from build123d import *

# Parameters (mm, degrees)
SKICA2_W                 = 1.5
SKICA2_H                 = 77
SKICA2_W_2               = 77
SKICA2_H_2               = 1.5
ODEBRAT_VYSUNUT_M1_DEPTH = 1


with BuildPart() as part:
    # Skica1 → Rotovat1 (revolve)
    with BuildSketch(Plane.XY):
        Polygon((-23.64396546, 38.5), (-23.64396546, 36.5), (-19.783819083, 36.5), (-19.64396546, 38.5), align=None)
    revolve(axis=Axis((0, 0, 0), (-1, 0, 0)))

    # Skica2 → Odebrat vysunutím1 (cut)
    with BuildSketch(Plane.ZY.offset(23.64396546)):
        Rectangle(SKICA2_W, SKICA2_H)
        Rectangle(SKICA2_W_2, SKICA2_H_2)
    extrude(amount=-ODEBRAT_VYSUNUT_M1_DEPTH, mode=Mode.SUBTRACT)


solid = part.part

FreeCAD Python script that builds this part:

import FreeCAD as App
import Part
import Sketcher
Q = App.Units.Quantity

doc = App.newDocument("Part")
body = doc.addObject("PartDesign::Body", "Body")

# Sketch on XY plane
sketch1 = body.newObject("Sketcher::SketchObject", "Sketch")
sketch1.AttachmentSupport = (doc.getObject("XY_Plane"), [""])
sketch1.MapMode = "FlatFace"
sketch1.addGeometry(Part.LineSegment(App.Vector(-23.6, 38.5, 0), App.Vector(-23.6, 36.5, 0)), False)
sketch1.addGeometry(Part.LineSegment(App.Vector(-23.6, 36.5, 0), App.Vector(-19.8, 36.5, 0)), False)
sketch1.addGeometry(Part.LineSegment(App.Vector(-19.8, 36.5, 0), App.Vector(-19.6, 38.5, 0)), False)
sketch1.addGeometry(Part.LineSegment(App.Vector(-19.6, 38.5, 0), App.Vector(-23.6, 38.5, 0)), False)
sketch1.addConstraint(Sketcher.Constraint("Coincident", 0, 2, 1, 1))
sketch1.addConstraint(Sketcher.Constraint("Coincident", 1, 2, 2, 1))
sketch1.addConstraint(Sketcher.Constraint("Coincident", 2, 2, 3, 1))
sketch1.addConstraint(Sketcher.Constraint("Coincident", 3, 2, 0, 1))
sketch1.addConstraint(Sketcher.Constraint("Vertical", 0))
sketch1.addConstraint(Sketcher.Constraint("Horizontal", 1))
sketch1.addConstraint(Sketcher.Constraint("Horizontal", 3))
sketch1.addConstraint(Sketcher.Constraint("DistanceX", 3, 2, 3, 1, Q("4 mm")))
sketch1.addConstraint(Sketcher.Constraint("DistanceY", 0, 2, 0, 1, Q("2 mm")))
sketch1.addConstraint(Sketcher.Constraint("Angle", 2, Q("86 deg")))
sketch1.addConstraint(Sketcher.Constraint("DistanceY", -1, 1, 0, 2, Q("36.5 mm")))
sketch1.addConstraint(Sketcher.Constraint("DistanceX", 1, 2, -1, 1, Q("19.783819 mm")))
revolution = body.newObject("PartDesign::Revolution", "Revolution")
revolution.Profile = sketch1
revolution.ReferenceAxis = (sketch1, ["H_Axis"])
revolution.Angle = 360

# Sketch on YZ plane
sketch2 = body.newObject("Sketcher::SketchObject", "Sketch001")
sketch2.AttachmentSupport = (doc.getObject("YZ_Plane"), [""])
sketch2.MapMode = "FlatFace"
sketch2.AttachmentOffset = App.Placement(App.Vector(0, 0, -23.643965), App.Rotation())
sketch2.addGeometry(Part.LineSegment(App.Vector(-0.8, -0.8, 0), App.Vector(-38.5, -0.8, 0)), False)
sketch2.addGeometry(Part.LineSegment(App.Vector(-38.5, -0.8, 0), App.Vector(-38.5, 0.8, 0)), False)
sketch2.addGeometry(Part.LineSegment(App.Vector(-38.5, 0.8, 0), App.Vector(-0.8, 0.8, 0)), False)
sketch2.addGeometry(Part.LineSegment(App.Vector(-0.8, 0.8, 0), App.Vector(-0.8, 38.5, 0)), False)
sketch2.addGeometry(Part.LineSegment(App.Vector(-0.8, 38.5, 0), App.Vector(0.8, 38.5, 0)), False)
sketch2.addGeometry(Part.LineSegment(App.Vector(0.8, 38.5, 0), App.Vector(0.8, 0.8, 0)), False)
sketch2.addGeometry(Part.LineSegment(App.Vector(0.8, 0.8, 0), App.Vector(38.5, 0.8, 0)), False)
sketch2.addGeometry(Part.LineSegment(App.Vector(38.5, 0.8, 0), App.Vector(38.5, -0.8, 0)), False)
sketch2.addGeometry(Part.LineSegment(App.Vector(38.5, -0.8, 0), App.Vector(0.8, -0.8, 0)), False)
sketch2.addGeometry(Part.LineSegment(App.Vector(0.8, -0.8, 0), App.Vector(0.8, -38.5, 0)), False)
sketch2.addGeometry(Part.LineSegment(App.Vector(0.8, -38.5, 0), App.Vector(-0.8, -38.5, 0)), False)
sketch2.addGeometry(Part.LineSegment(App.Vector(-0.8, -38.5, 0), App.Vector(-0.8, -0.8, 0)), False)
sketch2.addConstraint(Sketcher.Constraint("Coincident", 0, 2, 1, 1))
sketch2.addConstraint(Sketcher.Constraint("Coincident", 1, 2, 2, 1))
sketch2.addConstraint(Sketcher.Constraint("Coincident", 2, 2, 3, 1))
sketch2.addConstraint(Sketcher.Constraint("Coincident", 3, 2, 4, 1))
sketch2.addConstraint(Sketcher.Constraint("Coincident", 4, 2, 5, 1))
sketch2.addConstraint(Sketcher.Constraint("Coincident", 5, 2, 6, 1))
sketch2.addConstraint(Sketcher.Constraint("Coincident", 6, 2, 7, 1))
sketch2.addConstraint(Sketcher.Constraint("Coincident", 7, 2, 8, 1))
sketch2.addConstraint(Sketcher.Constraint("Coincident", 8, 2, 9, 1))
sketch2.addConstraint(Sketcher.Constraint("Coincident", 9, 2, 10, 1))
sketch2.addConstraint(Sketcher.Constraint("Coincident", 10, 2, 11, 1))
sketch2.addConstraint(Sketcher.Constraint("Coincident", 11, 2, 0, 1))
sketch2.addConstraint(Sketcher.Constraint("Horizontal", 0))
sketch2.addConstraint(Sketcher.Constraint("Vertical", 1))
sketch2.addConstraint(Sketcher.Constraint("Horizontal", 2))
sketch2.addConstraint(Sketcher.Constraint("Vertical", 3))
sketch2.addConstraint(Sketcher.Constraint("Horizontal", 4))
sketch2.addConstraint(Sketcher.Constraint("Vertical", 5))
sketch2.addConstraint(Sketcher.Constraint("Horizontal", 6))
sketch2.addConstraint(Sketcher.Constraint("Vertical", 7))
sketch2.addConstraint(Sketcher.Constraint("Horizontal", 8))
sketch2.addConstraint(Sketcher.Constraint("Vertical", 9))
sketch2.addConstraint(Sketcher.Constraint("Horizontal", 10))
sketch2.addConstraint(Sketcher.Constraint("Vertical", 11))
sketch2.addConstraint(Sketcher.Constraint("Symmetric", 0, 2, 6, 2, -1, 1))
sketch2.addConstraint(Sketcher.Constraint("Symmetric", 2, 2, 8, 2, -1, 1))
sketch2.addConstraint(Sketcher.Constraint("Symmetric", 4, 2, 10, 2, -1, 1))
sketch2.addConstraint(Sketcher.Constraint("Symmetric", 2, 2, 5, 2, -2))
sketch2.addConstraint(Sketcher.Constraint("Equal", 10, 1))
sketch2.addConstraint(Sketcher.Constraint("Equal", 8, 3))
sketch2.addConstraint(Sketcher.Constraint("DistanceX", 4, 1, 4, 2, Q("1.5 mm")))
sketch2.addConstraint(Sketcher.Constraint("DistanceX", 1, 2, 6, 2, Q("77 mm")))
pocket1 = body.newObject("PartDesign::Pocket", "Pocket")
pocket1.Profile = sketch2
pocket1.Length = 1
pocket1.Reversed = True

doc.recompute()
